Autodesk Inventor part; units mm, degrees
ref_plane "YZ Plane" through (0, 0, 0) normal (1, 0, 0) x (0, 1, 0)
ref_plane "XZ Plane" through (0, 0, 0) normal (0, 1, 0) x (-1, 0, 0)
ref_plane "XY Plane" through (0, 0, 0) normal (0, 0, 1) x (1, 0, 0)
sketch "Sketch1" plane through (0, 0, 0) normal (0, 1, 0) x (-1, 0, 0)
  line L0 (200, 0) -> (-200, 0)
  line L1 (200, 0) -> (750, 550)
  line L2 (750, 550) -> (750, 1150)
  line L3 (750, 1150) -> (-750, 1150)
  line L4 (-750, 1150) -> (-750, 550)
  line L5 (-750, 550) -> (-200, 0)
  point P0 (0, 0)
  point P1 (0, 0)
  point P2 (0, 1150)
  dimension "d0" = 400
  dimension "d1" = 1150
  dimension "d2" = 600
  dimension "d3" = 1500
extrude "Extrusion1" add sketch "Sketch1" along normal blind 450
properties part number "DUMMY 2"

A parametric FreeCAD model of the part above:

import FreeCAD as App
import Part
import Sketcher
from FreeCAD import Vector


def add_polygon(sketch, points):
    """Adds a closed chain of lines whose ends are joined by coincident constraints."""
    first, n = sketch.GeometryCount, len(points)
    for a, b in zip(points, points[1:] + points[:1]):
        sketch.addGeometry(Part.LineSegment(App.Vector(*a, 0), App.Vector(*b, 0)), False)
    for i in range(n):
        sketch.addConstraint(Sketcher.Constraint("Coincident", first + i, 2, first + (i + 1) % n, 1))

doc = App.newDocument("Part")
body = doc.addObject("PartDesign::Body", "Body")

# Sketch on XZ plane
sketch1 = body.newObject("Sketcher::SketchObject", "Sketch")
sketch1.AttachmentSupport = (doc.getObject("XZ_Plane"), [""])
sketch1.MapMode = "FlatFace"
add_polygon(sketch1, [(200, 0), (-200, 0), (-750, 550), (-750, 1150), (750, 1150), (750, 550)])  # lines 0-5
sketch1.addConstraint(Sketcher.Constraint("Horizontal", 0))
sketch1.addConstraint(Sketcher.Constraint("Vertical", 2))
sketch1.addConstraint(Sketcher.Constraint("Horizontal", 3))
sketch1.addConstraint(Sketcher.Constraint("Vertical", 4))
sketch1.addConstraint(Sketcher.Constraint("Symmetric", 0, 2, 5, 2, -1, 1))
sketch1.addConstraint(Sketcher.Constraint("Symmetric", 1, 2, 4, 2, -2))
sketch1.addConstraint(Sketcher.Constraint("Perpendicular", 1, 5))
sketch1.addConstraint(Sketcher.Constraint("DistanceX", 0, 2, 0, 1, 400.0))
sketch1.addConstraint(Sketcher.Constraint("DistanceX", 3, 1, 3, 2, 1500.0))
sketch1.addConstraint(Sketcher.Constraint("DistanceY", 2, 1, 2, 2, 600.0))
pad1 = body.newObject("PartDesign::Pad", "Pad")
pad1.Profile = sketch1
pad1.Length = 450
pad1.Reversed = True

doc.recompute()
